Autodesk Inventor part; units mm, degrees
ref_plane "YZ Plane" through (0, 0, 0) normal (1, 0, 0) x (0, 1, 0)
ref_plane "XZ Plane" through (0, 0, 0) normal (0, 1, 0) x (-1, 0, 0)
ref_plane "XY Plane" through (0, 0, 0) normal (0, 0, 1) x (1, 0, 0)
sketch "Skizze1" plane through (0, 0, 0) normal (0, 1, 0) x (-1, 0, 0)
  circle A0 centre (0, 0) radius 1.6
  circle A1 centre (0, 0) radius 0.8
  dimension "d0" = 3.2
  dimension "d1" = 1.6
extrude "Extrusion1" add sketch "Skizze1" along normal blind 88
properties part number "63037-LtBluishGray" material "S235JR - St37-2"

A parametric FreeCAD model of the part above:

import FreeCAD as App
import Part
import Sketcher

V = App.Vector

doc = App.newDocument("Part")
body = doc.addObject("PartDesign::Body", "Body")

# Sketch on XZ plane
sketch1 = body.newObject("Sketcher::SketchObject", "Sketch")
sketch1.AttachmentSupport = (doc.getObject("XZ_Plane"), [""])
sketch1.MapMode = "FlatFace"
sketch1.addGeometry(Part.Circle(V(0, 0, 0), V(0, 0, 1), 1.6), False)
sketch1.addGeometry(Part.Circle(V(0, 0, 0), V(0, 0, 1), 0.8), False)
sketch1.addConstraint(Sketcher.Constraint("Coincident", 0, 3, -1, 1))
sketch1.addConstraint(Sketcher.Constraint("Coincident", 1, 3, -1, 1))
sketch1.addConstraint(Sketcher.Constraint("Diameter", 0, 3.2))
sketch1.addConstraint(Sketcher.Constraint("Diameter", 1, 1.6))
pad1 = body.newObject("PartDesign::Pad", "Pad")
pad1.Profile = sketch1
pad1.Length = 88
pad1.Reversed = True

doc.recompute()
